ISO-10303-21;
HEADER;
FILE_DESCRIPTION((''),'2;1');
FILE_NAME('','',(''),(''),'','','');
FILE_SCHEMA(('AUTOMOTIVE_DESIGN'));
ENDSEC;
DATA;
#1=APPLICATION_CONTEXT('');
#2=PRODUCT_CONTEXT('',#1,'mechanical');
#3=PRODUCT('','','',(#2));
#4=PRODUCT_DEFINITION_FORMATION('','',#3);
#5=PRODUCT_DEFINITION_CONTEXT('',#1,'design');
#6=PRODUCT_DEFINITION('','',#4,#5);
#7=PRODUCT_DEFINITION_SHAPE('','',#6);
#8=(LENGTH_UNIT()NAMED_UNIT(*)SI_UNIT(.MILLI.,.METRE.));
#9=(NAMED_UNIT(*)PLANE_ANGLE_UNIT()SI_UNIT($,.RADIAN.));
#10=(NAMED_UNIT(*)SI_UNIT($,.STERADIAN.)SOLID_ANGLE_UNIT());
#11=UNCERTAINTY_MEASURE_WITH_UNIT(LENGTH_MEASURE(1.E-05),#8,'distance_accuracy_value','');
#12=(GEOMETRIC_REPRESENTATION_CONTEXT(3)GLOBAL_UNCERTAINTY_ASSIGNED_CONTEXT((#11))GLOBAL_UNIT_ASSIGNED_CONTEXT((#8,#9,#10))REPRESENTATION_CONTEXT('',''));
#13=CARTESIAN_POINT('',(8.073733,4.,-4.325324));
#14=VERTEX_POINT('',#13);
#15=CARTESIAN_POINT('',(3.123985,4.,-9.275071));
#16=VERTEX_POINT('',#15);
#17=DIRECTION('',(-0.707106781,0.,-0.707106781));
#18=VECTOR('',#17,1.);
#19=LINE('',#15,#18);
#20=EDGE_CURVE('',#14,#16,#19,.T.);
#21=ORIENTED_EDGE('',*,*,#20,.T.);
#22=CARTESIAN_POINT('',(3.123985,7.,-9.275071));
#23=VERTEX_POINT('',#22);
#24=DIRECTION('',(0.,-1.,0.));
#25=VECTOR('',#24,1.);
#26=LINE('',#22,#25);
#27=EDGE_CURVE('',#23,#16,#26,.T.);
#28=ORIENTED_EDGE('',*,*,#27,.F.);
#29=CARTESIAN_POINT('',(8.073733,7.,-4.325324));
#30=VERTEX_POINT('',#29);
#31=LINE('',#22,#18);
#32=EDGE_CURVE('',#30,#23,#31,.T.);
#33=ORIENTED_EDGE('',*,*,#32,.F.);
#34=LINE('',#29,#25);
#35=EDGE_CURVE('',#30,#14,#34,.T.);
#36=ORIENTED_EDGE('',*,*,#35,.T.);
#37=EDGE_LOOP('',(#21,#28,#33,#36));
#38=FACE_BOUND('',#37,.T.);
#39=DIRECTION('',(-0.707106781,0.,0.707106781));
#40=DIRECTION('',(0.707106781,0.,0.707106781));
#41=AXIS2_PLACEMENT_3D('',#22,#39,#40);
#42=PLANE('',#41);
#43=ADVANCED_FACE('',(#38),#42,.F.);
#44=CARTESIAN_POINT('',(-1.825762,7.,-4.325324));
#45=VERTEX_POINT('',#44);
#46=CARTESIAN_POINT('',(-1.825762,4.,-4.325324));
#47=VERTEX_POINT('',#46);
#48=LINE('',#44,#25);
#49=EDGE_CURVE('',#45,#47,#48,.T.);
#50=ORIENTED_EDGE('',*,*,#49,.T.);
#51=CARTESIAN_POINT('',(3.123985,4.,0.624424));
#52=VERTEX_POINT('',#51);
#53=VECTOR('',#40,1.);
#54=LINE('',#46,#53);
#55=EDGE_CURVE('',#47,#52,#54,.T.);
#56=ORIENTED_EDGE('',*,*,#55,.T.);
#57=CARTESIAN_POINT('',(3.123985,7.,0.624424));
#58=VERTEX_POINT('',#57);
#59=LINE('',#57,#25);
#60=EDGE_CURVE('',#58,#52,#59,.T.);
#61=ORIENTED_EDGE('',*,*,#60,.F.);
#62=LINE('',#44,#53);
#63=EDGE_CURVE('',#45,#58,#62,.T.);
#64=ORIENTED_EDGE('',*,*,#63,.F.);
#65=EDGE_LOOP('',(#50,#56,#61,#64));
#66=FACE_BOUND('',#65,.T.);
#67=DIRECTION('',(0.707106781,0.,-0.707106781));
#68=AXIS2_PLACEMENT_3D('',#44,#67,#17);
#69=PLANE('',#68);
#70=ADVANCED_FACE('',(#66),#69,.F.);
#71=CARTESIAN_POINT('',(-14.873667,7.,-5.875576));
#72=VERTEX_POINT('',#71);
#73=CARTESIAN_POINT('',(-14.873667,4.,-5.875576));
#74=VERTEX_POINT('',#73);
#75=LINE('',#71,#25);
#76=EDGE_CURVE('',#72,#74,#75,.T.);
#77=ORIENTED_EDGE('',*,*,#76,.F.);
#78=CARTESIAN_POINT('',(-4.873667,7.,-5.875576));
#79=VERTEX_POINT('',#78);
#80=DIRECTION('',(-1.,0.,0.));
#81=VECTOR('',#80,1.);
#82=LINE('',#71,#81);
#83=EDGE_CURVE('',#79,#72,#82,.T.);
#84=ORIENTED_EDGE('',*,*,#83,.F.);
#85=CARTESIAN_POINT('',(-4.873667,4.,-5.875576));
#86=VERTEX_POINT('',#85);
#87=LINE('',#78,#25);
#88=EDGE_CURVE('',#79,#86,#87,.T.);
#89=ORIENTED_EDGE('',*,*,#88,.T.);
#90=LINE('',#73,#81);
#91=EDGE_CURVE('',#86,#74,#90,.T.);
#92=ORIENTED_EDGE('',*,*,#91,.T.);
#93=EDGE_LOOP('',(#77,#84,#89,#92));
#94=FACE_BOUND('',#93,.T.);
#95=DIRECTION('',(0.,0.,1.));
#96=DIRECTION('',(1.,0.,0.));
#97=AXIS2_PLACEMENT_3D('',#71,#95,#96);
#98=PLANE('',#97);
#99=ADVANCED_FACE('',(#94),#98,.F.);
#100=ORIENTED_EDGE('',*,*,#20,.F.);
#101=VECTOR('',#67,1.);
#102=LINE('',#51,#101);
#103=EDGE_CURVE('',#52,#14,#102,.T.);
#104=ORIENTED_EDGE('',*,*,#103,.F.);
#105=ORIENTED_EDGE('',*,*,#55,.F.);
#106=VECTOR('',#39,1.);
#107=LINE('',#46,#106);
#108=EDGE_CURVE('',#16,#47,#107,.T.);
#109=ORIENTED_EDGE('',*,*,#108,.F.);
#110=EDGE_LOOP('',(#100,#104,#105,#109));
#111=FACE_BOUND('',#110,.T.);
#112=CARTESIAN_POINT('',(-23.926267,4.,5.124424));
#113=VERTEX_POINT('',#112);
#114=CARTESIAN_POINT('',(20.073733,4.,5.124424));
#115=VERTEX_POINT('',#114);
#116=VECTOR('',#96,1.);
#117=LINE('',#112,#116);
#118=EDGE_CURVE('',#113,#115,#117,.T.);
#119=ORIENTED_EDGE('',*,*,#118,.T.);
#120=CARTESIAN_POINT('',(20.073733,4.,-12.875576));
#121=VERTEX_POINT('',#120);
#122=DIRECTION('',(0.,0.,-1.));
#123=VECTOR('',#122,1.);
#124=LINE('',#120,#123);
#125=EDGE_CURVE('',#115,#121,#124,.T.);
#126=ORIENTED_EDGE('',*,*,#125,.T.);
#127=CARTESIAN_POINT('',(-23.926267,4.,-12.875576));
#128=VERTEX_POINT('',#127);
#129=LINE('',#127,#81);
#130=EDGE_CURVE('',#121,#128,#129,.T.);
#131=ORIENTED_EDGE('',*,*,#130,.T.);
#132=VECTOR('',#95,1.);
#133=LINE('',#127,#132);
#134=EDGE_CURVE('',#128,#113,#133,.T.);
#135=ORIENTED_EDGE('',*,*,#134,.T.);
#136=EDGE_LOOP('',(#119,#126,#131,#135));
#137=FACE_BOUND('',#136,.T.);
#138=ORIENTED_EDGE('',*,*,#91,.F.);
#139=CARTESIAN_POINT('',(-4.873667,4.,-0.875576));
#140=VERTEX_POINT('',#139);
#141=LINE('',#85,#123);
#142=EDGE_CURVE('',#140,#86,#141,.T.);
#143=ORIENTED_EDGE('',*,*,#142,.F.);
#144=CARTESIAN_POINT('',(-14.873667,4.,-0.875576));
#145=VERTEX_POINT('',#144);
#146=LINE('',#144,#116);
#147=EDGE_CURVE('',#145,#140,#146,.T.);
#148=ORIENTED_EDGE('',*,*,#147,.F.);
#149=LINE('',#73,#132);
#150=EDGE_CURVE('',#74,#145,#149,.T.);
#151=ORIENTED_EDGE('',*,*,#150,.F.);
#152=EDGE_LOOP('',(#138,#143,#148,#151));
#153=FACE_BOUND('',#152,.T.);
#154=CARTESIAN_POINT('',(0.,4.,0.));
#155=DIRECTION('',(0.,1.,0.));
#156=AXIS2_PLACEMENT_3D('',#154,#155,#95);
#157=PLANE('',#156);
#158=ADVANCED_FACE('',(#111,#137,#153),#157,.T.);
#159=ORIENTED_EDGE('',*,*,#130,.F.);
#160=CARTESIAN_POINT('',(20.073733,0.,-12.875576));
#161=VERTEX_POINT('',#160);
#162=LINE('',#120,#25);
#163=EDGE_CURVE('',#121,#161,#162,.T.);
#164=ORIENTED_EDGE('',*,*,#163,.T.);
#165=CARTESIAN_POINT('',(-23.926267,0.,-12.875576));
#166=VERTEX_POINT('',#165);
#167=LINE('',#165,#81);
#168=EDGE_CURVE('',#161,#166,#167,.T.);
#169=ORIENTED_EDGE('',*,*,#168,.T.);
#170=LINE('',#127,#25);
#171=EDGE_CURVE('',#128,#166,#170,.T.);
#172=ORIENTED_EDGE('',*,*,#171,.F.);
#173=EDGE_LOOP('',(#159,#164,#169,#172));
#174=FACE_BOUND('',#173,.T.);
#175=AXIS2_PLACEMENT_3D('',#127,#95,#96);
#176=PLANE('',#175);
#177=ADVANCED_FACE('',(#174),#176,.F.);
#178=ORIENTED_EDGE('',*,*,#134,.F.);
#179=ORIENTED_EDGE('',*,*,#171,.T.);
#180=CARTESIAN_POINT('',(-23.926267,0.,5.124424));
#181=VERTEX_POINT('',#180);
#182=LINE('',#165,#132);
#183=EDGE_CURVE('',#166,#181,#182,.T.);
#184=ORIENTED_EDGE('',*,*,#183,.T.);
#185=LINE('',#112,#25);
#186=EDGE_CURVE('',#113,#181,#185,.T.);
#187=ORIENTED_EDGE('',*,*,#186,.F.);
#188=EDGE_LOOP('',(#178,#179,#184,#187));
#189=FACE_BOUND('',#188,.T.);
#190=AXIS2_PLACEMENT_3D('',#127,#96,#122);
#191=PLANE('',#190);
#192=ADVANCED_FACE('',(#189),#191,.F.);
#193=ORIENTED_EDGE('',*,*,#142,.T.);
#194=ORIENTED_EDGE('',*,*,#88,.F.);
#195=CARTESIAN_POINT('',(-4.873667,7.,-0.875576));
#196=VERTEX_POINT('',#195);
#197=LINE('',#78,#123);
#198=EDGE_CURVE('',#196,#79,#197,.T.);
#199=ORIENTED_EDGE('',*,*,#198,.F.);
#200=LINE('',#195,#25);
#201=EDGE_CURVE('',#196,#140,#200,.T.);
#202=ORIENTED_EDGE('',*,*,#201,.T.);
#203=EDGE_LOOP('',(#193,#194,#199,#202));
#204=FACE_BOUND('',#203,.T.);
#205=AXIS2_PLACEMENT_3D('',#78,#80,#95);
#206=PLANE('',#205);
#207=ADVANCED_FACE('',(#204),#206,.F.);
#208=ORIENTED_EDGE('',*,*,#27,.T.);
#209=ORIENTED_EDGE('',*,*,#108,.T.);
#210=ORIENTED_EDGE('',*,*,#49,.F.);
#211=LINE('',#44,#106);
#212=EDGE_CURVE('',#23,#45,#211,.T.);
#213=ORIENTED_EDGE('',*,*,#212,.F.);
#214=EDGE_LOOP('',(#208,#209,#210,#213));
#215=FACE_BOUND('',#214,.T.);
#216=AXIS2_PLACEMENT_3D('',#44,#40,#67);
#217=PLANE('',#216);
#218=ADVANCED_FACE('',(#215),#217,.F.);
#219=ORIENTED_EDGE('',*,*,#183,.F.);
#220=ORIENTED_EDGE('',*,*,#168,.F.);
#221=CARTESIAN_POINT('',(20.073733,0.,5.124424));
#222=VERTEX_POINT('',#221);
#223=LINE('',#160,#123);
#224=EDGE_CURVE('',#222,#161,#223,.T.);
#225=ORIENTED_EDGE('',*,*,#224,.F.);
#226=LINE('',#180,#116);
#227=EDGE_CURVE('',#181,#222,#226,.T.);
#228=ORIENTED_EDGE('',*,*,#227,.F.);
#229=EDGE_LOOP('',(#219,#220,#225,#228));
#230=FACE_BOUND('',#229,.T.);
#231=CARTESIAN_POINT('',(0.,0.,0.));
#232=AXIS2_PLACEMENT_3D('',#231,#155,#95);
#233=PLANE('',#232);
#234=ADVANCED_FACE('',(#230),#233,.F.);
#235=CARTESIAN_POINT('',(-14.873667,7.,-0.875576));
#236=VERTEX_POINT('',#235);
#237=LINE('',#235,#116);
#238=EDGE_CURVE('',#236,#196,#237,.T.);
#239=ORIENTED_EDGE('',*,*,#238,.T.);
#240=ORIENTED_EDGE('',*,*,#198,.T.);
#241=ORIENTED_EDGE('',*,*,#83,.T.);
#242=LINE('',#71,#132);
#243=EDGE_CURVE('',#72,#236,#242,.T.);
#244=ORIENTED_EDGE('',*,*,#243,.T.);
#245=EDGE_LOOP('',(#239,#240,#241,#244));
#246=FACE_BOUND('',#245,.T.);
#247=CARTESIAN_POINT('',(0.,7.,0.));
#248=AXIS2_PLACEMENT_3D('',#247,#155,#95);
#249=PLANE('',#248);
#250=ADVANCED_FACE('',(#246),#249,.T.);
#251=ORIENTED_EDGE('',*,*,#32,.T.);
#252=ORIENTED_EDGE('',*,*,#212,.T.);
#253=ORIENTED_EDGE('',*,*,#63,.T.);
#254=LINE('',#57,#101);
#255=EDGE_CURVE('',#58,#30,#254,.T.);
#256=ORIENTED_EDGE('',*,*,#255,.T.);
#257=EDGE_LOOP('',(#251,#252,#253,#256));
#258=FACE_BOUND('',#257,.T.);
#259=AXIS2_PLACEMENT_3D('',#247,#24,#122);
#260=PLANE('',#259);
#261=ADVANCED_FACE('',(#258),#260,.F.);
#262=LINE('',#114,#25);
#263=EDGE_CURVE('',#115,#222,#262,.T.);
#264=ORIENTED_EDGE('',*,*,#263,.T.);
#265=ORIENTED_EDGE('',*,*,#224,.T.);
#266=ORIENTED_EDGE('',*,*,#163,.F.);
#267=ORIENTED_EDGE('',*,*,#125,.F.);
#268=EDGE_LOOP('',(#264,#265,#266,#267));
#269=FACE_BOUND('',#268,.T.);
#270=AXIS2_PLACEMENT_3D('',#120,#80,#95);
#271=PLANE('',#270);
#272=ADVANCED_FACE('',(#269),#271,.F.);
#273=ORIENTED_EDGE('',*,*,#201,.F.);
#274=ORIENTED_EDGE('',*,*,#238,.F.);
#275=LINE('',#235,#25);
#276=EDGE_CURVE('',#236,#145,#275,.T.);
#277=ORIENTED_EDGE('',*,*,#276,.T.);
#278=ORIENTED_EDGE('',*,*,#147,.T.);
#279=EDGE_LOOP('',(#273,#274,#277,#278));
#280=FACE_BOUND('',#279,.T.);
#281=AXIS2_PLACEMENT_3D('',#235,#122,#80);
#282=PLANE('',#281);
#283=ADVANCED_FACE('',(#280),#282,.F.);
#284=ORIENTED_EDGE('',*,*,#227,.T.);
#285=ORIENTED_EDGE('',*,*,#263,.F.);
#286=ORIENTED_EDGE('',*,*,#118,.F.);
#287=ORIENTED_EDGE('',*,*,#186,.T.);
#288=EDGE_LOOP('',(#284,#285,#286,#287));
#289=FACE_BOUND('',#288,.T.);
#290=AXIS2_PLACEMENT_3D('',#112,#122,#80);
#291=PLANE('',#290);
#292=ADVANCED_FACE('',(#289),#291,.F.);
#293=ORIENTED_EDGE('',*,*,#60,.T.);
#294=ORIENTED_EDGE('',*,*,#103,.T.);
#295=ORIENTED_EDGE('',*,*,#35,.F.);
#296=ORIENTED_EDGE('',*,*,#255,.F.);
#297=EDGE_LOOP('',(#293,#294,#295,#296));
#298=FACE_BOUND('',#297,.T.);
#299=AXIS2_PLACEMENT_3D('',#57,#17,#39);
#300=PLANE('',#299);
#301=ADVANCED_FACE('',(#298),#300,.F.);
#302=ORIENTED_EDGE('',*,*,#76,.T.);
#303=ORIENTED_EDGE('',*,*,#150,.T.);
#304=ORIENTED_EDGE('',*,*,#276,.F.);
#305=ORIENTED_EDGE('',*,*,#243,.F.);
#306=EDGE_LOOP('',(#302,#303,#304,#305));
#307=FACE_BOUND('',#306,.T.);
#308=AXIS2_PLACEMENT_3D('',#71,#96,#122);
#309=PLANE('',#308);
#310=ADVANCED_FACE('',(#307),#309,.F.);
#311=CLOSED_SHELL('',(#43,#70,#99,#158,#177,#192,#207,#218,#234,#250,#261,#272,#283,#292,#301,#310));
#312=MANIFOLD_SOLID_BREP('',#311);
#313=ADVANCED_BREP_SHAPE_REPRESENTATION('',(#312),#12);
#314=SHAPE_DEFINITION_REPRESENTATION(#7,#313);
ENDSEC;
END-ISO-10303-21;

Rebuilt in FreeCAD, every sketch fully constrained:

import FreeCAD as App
import Part
import Sketcher

V = App.Vector

doc = App.newDocument("Part")
params = doc.addObject("Spreadsheet::Sheet", "Params")
for row, (alias, value) in enumerate([
    ("sketch1_width", "44 mm"),
    ("sketch1_height", "18 mm"),
    ("pad1_length", "4 mm"),
    ("sketch2_width", "10 mm"),
    ("sketch2_height", "5 mm"),
    ("sketch2_length", "7 mm"),
    ("pad2_length", "3 mm"),
], start=1):
    params.set(f"A{row}", alias)
    params.set(f"B{row}", "=" + value)
    params.setAlias(f"B{row}", alias)

body = doc.addObject("PartDesign::Body", "Body")

# Sketch on XZ plane
sketch1 = doc.addObject("Sketcher::SketchObject", "Sketch")
body.addObject(sketch1)
sketch1.AttachmentSupport = (doc.XZ_Plane, [""])
sketch1.MapMode = "FlatFace"
sketch1.addGeometry([
    Part.LineSegment(V(-23.926267, -12.875576, 0), V(-23.926267, 5.124424, 0)),
    Part.LineSegment(V(-23.926267, 5.124424, 0), V(20.073733, 5.124424, 0)),
    Part.LineSegment(V(20.073733, 5.124424, 0), V(20.073733, -12.875576, 0)),
    Part.LineSegment(V(20.073733, -12.875576, 0), V(-23.926267, -12.875576, 0)),
], False)
sketch1.addConstraint([
    Sketcher.Constraint("Coincident", 0, 2, 1, 1),
    Sketcher.Constraint("Coincident", 1, 2, 2, 1),
    Sketcher.Constraint("Coincident", 2, 2, 3, 1),
    Sketcher.Constraint("Coincident", 3, 2, 0, 1),
    Sketcher.Constraint("Vertical", 0),
    Sketcher.Constraint("Horizontal", 1),
    Sketcher.Constraint("Vertical", 2),
    Sketcher.Constraint("Horizontal", 3),
    Sketcher.Constraint("DistanceX", 1, 1, 1, 2, 44.0),
    Sketcher.Constraint("DistanceY", 0, 1, 0, 2, 18.0),
    Sketcher.Constraint("DistanceX", 0, 2, -1, 1, 23.926267),
    Sketcher.Constraint("DistanceY", -1, 1, 0, 2, 5.124424),
])
sketch1.setExpression("Constraints[8]", "Params.sketch1_width")
sketch1.setExpression("Constraints[9]", "Params.sketch1_height")
pad1 = doc.addObject("PartDesign::Pad", "Pad")
body.addObject(pad1)
pad1.Profile = sketch1
pad1.setExpression("Length", "Params.pad1_length")
pad1.Reversed = True

# Sketch on XZ plane
sketch2 = doc.addObject("Sketcher::SketchObject", "Sketch001")
body.addObject(sketch2)
sketch2.AttachmentSupport = (doc.XZ_Plane, [""])
sketch2.MapMode = "FlatFace"
sketch2.AttachmentOffset = App.Placement(V(0, 0, -4), App.Rotation())
sketch2.addGeometry([
    Part.LineSegment(V(-14.873667, -5.875576, 0), V(-14.873667, -0.875576, 0)),  # 0
    Part.LineSegment(V(-14.873667, -0.875576, 0), V(-4.873667, -0.875576, 0)),  # 1
    Part.LineSegment(V(-4.873667, -0.875576, 0), V(-4.873667, -5.875576, 0)),  # 2
    Part.LineSegment(V(-4.873667, -5.875576, 0), V(-14.873667, -5.875576, 0)),  # 3
    Part.LineSegment(V(-1.825762, -4.325324, 0), V(3.123985, 0.624424, 0)),  # 4
    Part.LineSegment(V(3.123985, 0.624424, 0), V(8.073733, -4.325324, 0)),  # 5
    Part.LineSegment(V(8.073733, -4.325324, 0), V(3.123985, -9.275071, 0)),  # 6
    Part.LineSegment(V(3.123985, -9.275071, 0), V(-1.825762, -4.325324, 0)),  # 7
], False)
sketch2.addConstraint([
    Sketcher.Constraint("Coincident", 0, 2, 1, 1),
    Sketcher.Constraint("Coincident", 1, 2, 2, 1),
    Sketcher.Constraint("Coincident", 2, 2, 3, 1),
    Sketcher.Constraint("Coincident", 3, 2, 0, 1),
    Sketcher.Constraint("Coincident", 4, 2, 5, 1),
    Sketcher.Constraint("Coincident", 5, 2, 6, 1),
    Sketcher.Constraint("Coincident", 6, 2, 7, 1),
    Sketcher.Constraint("Coincident", 7, 2, 4, 1),
    Sketcher.Constraint("Vertical", 0),
    Sketcher.Constraint("Horizontal", 1),
    Sketcher.Constraint("Vertical", 2),
    Sketcher.Constraint("Horizontal", 3),
    Sketcher.Constraint("Perpendicular", 4, 5),
    Sketcher.Constraint("Perpendicular", 5, 6),
    Sketcher.Constraint("Perpendicular", 6, 7),
    Sketcher.Constraint("Horizontal", 5, 2, 7, 2),
    Sketcher.Constraint("Vertical", 4, 2, 6, 2),
    Sketcher.Constraint("DistanceX", 1, 1, 1, 2, 10.0),
    Sketcher.Constraint("DistanceY", 0, 1, 0, 2, 5.0),
    Sketcher.Constraint("Distance", 4, 7.0),
    Sketcher.Constraint("DistanceY", 1, 2, 4, 2, 1.5),
    Sketcher.Constraint("DistanceX", 2, 2, 5, 2, 12.947399),
    Sketcher.Constraint("DistanceY", 6, 2, -1, 1, 9.275071),
    Sketcher.Constraint("DistanceX", 0, 2, -1, 1, 14.873667),
])
sketch2.setExpression("Constraints[17]", "Params.sketch2_width")
sketch2.setExpression("Constraints[18]", "Params.sketch2_height")
sketch2.setExpression("Constraints[19]", "Params.sketch2_length")
pad2 = doc.addObject("PartDesign::Pad", "Pad001")
body.addObject(pad2)
pad2.Profile = sketch2
pad2.setExpression("Length", "Params.pad2_length")
pad2.Reversed = True

doc.recompute()
